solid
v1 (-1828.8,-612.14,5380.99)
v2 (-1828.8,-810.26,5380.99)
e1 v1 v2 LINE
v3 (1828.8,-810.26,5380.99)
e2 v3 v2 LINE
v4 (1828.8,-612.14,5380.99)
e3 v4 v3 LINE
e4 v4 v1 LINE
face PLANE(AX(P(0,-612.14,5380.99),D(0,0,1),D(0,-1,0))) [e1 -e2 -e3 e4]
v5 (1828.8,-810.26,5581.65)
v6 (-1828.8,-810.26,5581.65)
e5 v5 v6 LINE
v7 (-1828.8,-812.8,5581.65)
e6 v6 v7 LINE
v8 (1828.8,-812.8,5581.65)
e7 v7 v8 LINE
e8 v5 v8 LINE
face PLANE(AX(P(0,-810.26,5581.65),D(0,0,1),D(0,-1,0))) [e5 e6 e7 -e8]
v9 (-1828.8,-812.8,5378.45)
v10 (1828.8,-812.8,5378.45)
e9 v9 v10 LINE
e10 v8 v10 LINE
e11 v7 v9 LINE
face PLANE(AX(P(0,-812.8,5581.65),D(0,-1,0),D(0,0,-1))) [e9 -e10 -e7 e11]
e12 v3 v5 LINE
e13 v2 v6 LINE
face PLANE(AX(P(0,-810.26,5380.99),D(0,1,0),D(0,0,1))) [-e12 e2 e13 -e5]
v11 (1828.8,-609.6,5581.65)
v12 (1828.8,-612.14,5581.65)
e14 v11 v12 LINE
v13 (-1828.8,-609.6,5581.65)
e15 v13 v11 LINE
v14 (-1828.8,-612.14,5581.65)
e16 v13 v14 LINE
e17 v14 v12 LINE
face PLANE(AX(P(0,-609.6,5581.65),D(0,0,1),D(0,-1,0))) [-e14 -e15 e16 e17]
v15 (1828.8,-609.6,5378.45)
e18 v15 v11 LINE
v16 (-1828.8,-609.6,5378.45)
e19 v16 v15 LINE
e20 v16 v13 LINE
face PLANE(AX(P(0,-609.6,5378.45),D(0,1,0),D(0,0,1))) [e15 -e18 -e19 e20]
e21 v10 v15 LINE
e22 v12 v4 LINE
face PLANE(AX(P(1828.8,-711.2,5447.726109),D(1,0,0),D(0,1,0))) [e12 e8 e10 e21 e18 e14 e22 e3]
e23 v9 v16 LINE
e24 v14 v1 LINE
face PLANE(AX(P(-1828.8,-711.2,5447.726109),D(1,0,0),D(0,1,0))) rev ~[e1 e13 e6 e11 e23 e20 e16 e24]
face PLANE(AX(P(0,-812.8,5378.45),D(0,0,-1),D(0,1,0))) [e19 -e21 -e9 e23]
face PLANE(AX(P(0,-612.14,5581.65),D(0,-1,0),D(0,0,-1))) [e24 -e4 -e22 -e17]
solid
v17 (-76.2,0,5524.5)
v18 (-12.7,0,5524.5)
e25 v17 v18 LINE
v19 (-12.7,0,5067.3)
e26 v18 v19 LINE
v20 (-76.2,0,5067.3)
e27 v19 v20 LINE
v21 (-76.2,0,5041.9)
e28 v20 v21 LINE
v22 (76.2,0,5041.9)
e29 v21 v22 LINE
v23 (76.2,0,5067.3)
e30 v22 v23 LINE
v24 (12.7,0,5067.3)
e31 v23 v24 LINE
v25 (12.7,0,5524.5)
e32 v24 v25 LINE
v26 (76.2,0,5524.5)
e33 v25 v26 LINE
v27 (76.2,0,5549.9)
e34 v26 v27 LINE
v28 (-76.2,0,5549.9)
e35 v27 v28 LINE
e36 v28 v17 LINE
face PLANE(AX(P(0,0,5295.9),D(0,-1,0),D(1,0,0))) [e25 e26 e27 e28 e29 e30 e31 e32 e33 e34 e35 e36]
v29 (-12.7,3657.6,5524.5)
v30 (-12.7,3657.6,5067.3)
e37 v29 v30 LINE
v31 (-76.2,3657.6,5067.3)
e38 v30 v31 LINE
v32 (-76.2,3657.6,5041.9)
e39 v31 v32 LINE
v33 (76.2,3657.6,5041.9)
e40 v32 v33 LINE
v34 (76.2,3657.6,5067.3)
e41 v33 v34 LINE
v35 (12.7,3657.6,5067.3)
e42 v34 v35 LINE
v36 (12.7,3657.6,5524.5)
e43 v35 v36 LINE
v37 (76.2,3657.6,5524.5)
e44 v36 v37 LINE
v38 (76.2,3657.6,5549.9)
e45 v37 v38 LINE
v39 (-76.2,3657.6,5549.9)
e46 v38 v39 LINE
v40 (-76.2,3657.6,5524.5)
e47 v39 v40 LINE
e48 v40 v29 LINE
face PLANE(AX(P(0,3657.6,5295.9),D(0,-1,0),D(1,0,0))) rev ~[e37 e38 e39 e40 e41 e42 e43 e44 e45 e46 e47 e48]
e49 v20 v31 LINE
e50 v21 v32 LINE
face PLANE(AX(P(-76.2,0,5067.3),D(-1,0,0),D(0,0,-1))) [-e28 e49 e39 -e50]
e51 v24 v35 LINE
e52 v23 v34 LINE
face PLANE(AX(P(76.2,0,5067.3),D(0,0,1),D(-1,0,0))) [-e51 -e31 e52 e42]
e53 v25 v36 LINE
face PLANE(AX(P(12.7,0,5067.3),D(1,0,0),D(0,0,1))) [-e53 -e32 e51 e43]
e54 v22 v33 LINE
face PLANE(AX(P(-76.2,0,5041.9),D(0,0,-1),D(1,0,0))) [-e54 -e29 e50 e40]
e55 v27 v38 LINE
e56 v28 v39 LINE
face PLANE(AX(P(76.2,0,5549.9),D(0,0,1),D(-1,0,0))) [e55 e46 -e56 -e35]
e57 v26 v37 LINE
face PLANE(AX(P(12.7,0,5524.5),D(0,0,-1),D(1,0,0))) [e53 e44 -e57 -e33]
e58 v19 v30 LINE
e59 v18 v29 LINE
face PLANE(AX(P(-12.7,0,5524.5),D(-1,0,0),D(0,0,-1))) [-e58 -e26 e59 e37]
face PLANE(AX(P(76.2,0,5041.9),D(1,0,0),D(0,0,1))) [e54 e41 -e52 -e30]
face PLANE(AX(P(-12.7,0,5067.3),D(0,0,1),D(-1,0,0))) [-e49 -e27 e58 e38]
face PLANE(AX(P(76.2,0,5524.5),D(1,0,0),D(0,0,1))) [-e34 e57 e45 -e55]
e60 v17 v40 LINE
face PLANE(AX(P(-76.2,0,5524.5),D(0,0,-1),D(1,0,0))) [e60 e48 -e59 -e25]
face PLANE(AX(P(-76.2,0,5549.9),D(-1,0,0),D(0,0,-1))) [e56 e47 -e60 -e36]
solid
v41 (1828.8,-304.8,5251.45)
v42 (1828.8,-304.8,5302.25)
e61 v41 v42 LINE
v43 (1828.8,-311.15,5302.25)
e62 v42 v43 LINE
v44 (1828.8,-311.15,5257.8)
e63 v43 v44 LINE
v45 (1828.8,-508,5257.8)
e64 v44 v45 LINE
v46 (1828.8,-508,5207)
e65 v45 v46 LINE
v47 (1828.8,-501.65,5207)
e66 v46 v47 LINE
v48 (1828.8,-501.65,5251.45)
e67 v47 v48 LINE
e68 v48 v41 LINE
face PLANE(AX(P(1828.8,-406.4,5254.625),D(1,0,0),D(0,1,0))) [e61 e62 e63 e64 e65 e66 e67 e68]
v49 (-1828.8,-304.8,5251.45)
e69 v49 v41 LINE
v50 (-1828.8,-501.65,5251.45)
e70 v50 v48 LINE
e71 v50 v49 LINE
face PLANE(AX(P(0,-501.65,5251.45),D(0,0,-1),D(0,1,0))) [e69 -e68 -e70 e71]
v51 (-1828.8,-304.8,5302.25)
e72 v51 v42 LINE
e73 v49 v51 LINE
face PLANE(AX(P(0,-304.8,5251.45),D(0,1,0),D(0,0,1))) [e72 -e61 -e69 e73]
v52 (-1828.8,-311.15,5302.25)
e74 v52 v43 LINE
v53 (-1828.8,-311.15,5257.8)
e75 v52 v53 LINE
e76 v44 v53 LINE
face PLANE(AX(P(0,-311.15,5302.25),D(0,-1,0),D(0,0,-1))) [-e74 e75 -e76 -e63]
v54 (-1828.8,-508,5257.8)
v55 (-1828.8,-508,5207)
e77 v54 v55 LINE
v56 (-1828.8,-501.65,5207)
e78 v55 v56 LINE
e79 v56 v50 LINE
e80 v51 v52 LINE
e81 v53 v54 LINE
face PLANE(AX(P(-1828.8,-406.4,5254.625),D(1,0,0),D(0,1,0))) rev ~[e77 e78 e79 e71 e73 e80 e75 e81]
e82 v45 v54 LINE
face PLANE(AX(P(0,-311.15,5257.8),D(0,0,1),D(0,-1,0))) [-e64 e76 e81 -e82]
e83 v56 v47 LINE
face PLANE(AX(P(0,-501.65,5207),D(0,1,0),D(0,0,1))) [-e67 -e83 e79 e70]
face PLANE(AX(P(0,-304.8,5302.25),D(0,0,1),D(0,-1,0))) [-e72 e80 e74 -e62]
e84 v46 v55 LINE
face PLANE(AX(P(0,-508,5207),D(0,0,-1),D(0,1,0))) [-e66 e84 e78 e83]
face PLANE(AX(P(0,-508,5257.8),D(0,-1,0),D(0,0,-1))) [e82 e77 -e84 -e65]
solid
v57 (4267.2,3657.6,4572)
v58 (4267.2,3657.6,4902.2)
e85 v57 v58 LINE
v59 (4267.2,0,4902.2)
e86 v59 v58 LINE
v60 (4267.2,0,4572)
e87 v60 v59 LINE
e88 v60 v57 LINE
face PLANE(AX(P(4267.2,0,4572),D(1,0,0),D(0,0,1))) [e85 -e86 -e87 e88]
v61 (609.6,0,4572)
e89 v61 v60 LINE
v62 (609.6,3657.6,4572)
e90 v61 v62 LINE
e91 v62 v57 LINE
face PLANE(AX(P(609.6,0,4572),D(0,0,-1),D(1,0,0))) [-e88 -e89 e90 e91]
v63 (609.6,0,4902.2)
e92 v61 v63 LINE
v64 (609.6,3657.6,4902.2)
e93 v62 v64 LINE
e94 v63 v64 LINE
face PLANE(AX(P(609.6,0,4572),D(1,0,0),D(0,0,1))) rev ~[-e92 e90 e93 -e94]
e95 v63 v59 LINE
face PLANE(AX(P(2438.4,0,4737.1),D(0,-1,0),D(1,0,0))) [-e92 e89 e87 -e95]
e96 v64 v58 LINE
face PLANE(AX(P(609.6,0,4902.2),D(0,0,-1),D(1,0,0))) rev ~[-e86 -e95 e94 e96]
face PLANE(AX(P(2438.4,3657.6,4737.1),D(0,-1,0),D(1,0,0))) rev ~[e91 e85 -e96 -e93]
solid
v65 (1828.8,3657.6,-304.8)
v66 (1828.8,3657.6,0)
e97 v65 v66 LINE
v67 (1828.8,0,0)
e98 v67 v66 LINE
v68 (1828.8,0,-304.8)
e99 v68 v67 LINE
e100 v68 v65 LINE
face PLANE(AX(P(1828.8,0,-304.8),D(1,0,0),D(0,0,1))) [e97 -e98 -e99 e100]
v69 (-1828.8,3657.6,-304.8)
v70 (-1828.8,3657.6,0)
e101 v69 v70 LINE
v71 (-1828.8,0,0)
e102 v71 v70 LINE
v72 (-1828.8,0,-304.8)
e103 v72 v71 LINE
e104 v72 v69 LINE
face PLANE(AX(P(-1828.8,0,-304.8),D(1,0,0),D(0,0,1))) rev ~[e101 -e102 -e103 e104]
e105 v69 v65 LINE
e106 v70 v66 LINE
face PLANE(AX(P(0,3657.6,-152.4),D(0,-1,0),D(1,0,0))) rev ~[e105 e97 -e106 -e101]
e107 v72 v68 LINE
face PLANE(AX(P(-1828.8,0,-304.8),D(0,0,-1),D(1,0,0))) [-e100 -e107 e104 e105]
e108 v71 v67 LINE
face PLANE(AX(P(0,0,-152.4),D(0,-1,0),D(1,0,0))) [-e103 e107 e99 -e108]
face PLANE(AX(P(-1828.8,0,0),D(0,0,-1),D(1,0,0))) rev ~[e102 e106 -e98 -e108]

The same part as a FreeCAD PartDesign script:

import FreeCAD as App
import Part
import Sketcher

V = App.Vector
Q = App.Units.Quantity


def add_polygon(sketch, points):
    """Adds a closed chain of lines whose ends are joined by coincident constraints."""
    first, n = sketch.GeometryCount, len(points)
    for a, b in zip(points, points[1:] + points[:1]):
        sketch.addGeometry(Part.LineSegment(App.Vector(*a, 0), App.Vector(*b, 0)), False)
    for i in range(n):
        sketch.addConstraint(Sketcher.Constraint("Coincident", first + i, 2, first + (i + 1) % n, 1))

doc = App.newDocument("Part")
params = doc.addObject("Spreadsheet::Sheet", "Params")
for row, (alias, value) in enumerate([
    ("sketch1_width", "144 in"),
    ("sketch1_height", "12 in"),
    ("pad1_length", "144 in"),
    ("sketch2_width", "6 in"),
    ("sketch2_height", "1 in"),
    ("sketch2_height2", "18 in"),
    ("sketch2_width2", "2.5 in"),
    ("pad2_length", "144 in"),
    ("sketch3_height", "2 in"),
    ("sketch3_width", "0.25 in"),
    ("sketch3_height2", "1.75 in"),
    ("pad3_length", "144 in"),
    ("sketch4_width", "8 in"),
    ("sketch4_width2", "0.1 in"),
    ("sketch4_height", "7.9 in"),
    ("pad4_length", "144 in"),
    ("sketch5_width", "144 in"),
    ("sketch5_height", "13 in"),
    ("pad5_length", "144 in"),
], start=1):
    params.set(f"A{row}", alias)
    params.set(f"B{row}", "=" + value)
    params.setAlias(f"B{row}", alias)

body = doc.addObject("PartDesign::Body", "Body")

# Sketch on XZ plane
sketch1 = body.newObject("Sketcher::SketchObject", "Sketch")
sketch1.AttachmentSupport = (doc.getObject("XZ_Plane"), [""])
sketch1.MapMode = "FlatFace"
add_polygon(sketch1, [(-1829, 0), (-1829, -305), (1829, -305), (1829, 0)])  # lines 0-3
sketch1.addConstraint([
    Sketcher.Constraint("Vertical", 0),
    Sketcher.Constraint("Horizontal", 1),
    Sketcher.Constraint("Vertical", 2),
    Sketcher.Constraint("Horizontal", 3),
    Sketcher.Constraint("Symmetric", 2, 2, 3, 2, -1, 1),
    Sketcher.Constraint("DistanceX", 1, 1, 1, 2, Q("144 in")),
    Sketcher.Constraint("DistanceY", 0, 2, 0, 1, Q("12 in")),
])
sketch1.setExpression("Constraints[9]", "Params.sketch1_width")
sketch1.setExpression("Constraints[10]", "Params.sketch1_height")
pad1 = body.newObject("PartDesign::Pad", "Pad")
pad1.Profile = sketch1
pad1.setExpression("Length", "Params.pad1_length")
pad1.Reversed = True
body2 = doc.addObject("PartDesign::Body", "Body001")

# Sketch on XZ plane
sketch2 = body2.newObject("Sketcher::SketchObject", "Sketch001")
sketch2.AttachmentSupport = (doc.getObject("XZ_Plane001"), [""])
sketch2.MapMode = "FlatFace"
add_polygon(sketch2, [(76, 5550), (-76, 5550), (-76, 5524), (-13, 5524), (-13, 5067), (-76, 5067), (-76, 5042), (76, 5042), (76, 5067), (13, 5067), (13, 5524), (76, 5524)])  # lines 0-11
sketch2.addConstraint([
    Sketcher.Constraint("Horizontal", 0),
    Sketcher.Constraint("Vertical", 1),
    Sketcher.Constraint("Horizontal", 2),
    Sketcher.Constraint("Vertical", 3),
    Sketcher.Constraint("Horizontal", 4),
    Sketcher.Constraint("Vertical", 5),
    Sketcher.Constraint("Horizontal", 6),
    Sketcher.Constraint("Vertical", 7),
    Sketcher.Constraint("Horizontal", 8),
    Sketcher.Constraint("Vertical", 9),
    Sketcher.Constraint("Horizontal", 10),
    Sketcher.Constraint("Vertical", 11),
    Sketcher.Constraint("Symmetric", 4, 2, 7, 2, -2),
    Sketcher.Constraint("Symmetric", 2, 2, 9, 2, -2),
    Sketcher.Constraint("Vertical", 1, 2, 4, 2),
    Sketcher.Constraint("Vertical", 7, 2, 10, 2),
    Sketcher.Constraint("Equal", 1, 5),
    Sketcher.Constraint("DistanceX", 0, 2, 0, 1, Q("6 in")),
    Sketcher.Constraint("DistanceY", 1, 2, 1, 1, Q("1 in")),
    Sketcher.Constraint("DistanceY", 3, 2, 3, 1, Q("18 in")),
    Sketcher.Constraint("DistanceX", 2, 1, 2, 2, Q("2.5 in")),
    Sketcher.Constraint("DistanceY", -1, 1, 0, 2, Q("218.5 in")),
])
sketch2.setExpression("Constraints[29]", "Params.sketch2_width")
sketch2.setExpression("Constraints[30]", "Params.sketch2_height")
sketch2.setExpression("Constraints[31]", "Params.sketch2_height2")
sketch2.setExpression("Constraints[32]", "Params.sketch2_width2")
pad2 = body2.newObject("PartDesign::Pad", "Pad001")
pad2.Profile = sketch2
pad2.setExpression("Length", "Params.pad2_length")
pad2.Reversed = True
body3 = doc.addObject("PartDesign::Body", "Body002")

# Sketch on YZ plane
sketch3 = body3.newObject("Sketcher::SketchObject", "Sketch002")
sketch3.AttachmentSupport = (doc.getObject("YZ_Plane002"), [""])
sketch3.MapMode = "FlatFace"
add_polygon(sketch3, [(-508, 5207), (-502, 5207), (-502, 5251), (-305, 5251), (-305, 5302), (-311, 5302), (-311, 5258), (-508, 5258)])  # lines 0-7
sketch3.addConstraint([
    Sketcher.Constraint("Horizontal", 0),
    Sketcher.Constraint("Vertical", 1),
    Sketcher.Constraint("Horizontal", 2),
    Sketcher.Constraint("Vertical", 3),
    Sketcher.Constraint("Horizontal", 4),
    Sketcher.Constraint("Vertical", 5),
    Sketcher.Constraint("Horizontal", 6),
    Sketcher.Constraint("Vertical", 7),
    Sketcher.Constraint("Equal", 0, 4),
    Sketcher.Constraint("Equal", 1, 5),
    Sketcher.Constraint("DistanceY", 3, 1, 3, 2, Q("2 in")),
    Sketcher.Constraint("DistanceY", -1, 1, 0, 2, Q("205 in")),
    Sketcher.Constraint("DistanceX", 2, 2, -1, 1, Q("12 in")),
    Sketcher.Constraint("DistanceX", 6, 2, -1, 1, Q("20 in")),
    Sketcher.Constraint("DistanceX", 0, 1, 0, 2, Q("0.25 in")),
    Sketcher.Constraint("DistanceY", 1, 1, 1, 2, Q("1.75 in")),
])
sketch3.setExpression("Constraints[18]", "Params.sketch3_height")
sketch3.setExpression("Constraints[22]", "Params.sketch3_width")
sketch3.setExpression("Constraints[23]", "Params.sketch3_height2")
pad3 = body3.newObject("PartDesign::Pad", "Pad002")
pad3.Profile = sketch3
pad3.setExpression("Length", "Params.pad3_length")
pad3.Midplane = True
body4 = doc.addObject("PartDesign::Body", "Body003")

# Sketch on YZ plane
sketch4 = body4.newObject("Sketcher::SketchObject", "Sketch003")
sketch4.AttachmentSupport = (doc.getObject("YZ_Plane003"), [""])
sketch4.MapMode = "FlatFace"
add_polygon(sketch4, [(-810.3, 5581.6), (-812.8, 5581.6), (-812.8, 5378.4), (-609.6, 5378.4), (-609.6, 5581.6), (-612.1, 5581.6), (-612.1, 5381), (-810.3, 5381)])  # lines 0-7
sketch4.addConstraint([
    Sketcher.Constraint("Horizontal", 0),
    Sketcher.Constraint("Vertical", 1),
    Sketcher.Constraint("Horizontal", 2),
    Sketcher.Constraint("Vertical", 3),
    Sketcher.Constraint("Horizontal", 4),
    Sketcher.Constraint("Vertical", 5),
    Sketcher.Constraint("Horizontal", 6),
    Sketcher.Constraint("Vertical", 7),
    Sketcher.Constraint("Horizontal", 0, 2, 3, 2),
    Sketcher.Constraint("Equal", 0, 4),
    Sketcher.Constraint("Equal", 2, 1),
    Sketcher.Constraint("DistanceX", 2, 1, 2, 2, Q("8 in")),
    Sketcher.Constraint("DistanceX", 0, 2, 0, 1, Q("0.1 in")),
    Sketcher.Constraint("DistanceY", 5, 2, 5, 1, Q("7.9 in")),
    Sketcher.Constraint("DistanceX", 0, 2, -1, 1, Q("32 in")),
    Sketcher.Constraint("DistanceY", -1, 1, 0, 2, Q("219.75 in")),
])
sketch4.setExpression("Constraints[19]", "Params.sketch4_width")
sketch4.setExpression("Constraints[20]", "Params.sketch4_width2")
sketch4.setExpression("Constraints[21]", "Params.sketch4_height")
pad4 = body4.newObject("PartDesign::Pad", "Pad003")
pad4.Profile = sketch4
pad4.setExpression("Length", "Params.pad4_length")
pad4.Midplane = True
body5 = doc.addObject("PartDesign::Body", "Body004")

# Sketch on XZ plane
sketch5 = body5.newObject("Sketcher::SketchObject", "Sketch004")
sketch5.AttachmentSupport = (doc.getObject("XZ_Plane004"), [""])
sketch5.MapMode = "FlatFace"
add_polygon(sketch5, [(610, 4902), (610, 4572), (4267, 4572), (4267, 4902)])  # lines 0-3
sketch5.addConstraint([
    Sketcher.Constraint("Vertical", 0),
    Sketcher.Constraint("Horizontal", 1),
    Sketcher.Constraint("Vertical", 2),
    Sketcher.Constraint("Horizontal", 3),
    Sketcher.Constraint("DistanceX", 1, 1, 1, 2, Q("144 in")),
    Sketcher.Constraint("DistanceY", 0, 2, 0, 1, Q("13 in")),
    Sketcher.Constraint("DistanceX", -1, 1, 0, 2, Q("24 in")),
    Sketcher.Constraint("DistanceY", -1, 1, 0, 2, Q("180 in")),
])
sketch5.setExpression("Constraints[8]", "Params.sketch5_width")
sketch5.setExpression("Constraints[9]", "Params.sketch5_height")
pad5 = body5.newObject("PartDesign::Pad", "Pad004")
pad5.Profile = sketch5
pad5.setExpression("Length", "Params.pad5_length")
pad5.Reversed = True

doc.recompute()
